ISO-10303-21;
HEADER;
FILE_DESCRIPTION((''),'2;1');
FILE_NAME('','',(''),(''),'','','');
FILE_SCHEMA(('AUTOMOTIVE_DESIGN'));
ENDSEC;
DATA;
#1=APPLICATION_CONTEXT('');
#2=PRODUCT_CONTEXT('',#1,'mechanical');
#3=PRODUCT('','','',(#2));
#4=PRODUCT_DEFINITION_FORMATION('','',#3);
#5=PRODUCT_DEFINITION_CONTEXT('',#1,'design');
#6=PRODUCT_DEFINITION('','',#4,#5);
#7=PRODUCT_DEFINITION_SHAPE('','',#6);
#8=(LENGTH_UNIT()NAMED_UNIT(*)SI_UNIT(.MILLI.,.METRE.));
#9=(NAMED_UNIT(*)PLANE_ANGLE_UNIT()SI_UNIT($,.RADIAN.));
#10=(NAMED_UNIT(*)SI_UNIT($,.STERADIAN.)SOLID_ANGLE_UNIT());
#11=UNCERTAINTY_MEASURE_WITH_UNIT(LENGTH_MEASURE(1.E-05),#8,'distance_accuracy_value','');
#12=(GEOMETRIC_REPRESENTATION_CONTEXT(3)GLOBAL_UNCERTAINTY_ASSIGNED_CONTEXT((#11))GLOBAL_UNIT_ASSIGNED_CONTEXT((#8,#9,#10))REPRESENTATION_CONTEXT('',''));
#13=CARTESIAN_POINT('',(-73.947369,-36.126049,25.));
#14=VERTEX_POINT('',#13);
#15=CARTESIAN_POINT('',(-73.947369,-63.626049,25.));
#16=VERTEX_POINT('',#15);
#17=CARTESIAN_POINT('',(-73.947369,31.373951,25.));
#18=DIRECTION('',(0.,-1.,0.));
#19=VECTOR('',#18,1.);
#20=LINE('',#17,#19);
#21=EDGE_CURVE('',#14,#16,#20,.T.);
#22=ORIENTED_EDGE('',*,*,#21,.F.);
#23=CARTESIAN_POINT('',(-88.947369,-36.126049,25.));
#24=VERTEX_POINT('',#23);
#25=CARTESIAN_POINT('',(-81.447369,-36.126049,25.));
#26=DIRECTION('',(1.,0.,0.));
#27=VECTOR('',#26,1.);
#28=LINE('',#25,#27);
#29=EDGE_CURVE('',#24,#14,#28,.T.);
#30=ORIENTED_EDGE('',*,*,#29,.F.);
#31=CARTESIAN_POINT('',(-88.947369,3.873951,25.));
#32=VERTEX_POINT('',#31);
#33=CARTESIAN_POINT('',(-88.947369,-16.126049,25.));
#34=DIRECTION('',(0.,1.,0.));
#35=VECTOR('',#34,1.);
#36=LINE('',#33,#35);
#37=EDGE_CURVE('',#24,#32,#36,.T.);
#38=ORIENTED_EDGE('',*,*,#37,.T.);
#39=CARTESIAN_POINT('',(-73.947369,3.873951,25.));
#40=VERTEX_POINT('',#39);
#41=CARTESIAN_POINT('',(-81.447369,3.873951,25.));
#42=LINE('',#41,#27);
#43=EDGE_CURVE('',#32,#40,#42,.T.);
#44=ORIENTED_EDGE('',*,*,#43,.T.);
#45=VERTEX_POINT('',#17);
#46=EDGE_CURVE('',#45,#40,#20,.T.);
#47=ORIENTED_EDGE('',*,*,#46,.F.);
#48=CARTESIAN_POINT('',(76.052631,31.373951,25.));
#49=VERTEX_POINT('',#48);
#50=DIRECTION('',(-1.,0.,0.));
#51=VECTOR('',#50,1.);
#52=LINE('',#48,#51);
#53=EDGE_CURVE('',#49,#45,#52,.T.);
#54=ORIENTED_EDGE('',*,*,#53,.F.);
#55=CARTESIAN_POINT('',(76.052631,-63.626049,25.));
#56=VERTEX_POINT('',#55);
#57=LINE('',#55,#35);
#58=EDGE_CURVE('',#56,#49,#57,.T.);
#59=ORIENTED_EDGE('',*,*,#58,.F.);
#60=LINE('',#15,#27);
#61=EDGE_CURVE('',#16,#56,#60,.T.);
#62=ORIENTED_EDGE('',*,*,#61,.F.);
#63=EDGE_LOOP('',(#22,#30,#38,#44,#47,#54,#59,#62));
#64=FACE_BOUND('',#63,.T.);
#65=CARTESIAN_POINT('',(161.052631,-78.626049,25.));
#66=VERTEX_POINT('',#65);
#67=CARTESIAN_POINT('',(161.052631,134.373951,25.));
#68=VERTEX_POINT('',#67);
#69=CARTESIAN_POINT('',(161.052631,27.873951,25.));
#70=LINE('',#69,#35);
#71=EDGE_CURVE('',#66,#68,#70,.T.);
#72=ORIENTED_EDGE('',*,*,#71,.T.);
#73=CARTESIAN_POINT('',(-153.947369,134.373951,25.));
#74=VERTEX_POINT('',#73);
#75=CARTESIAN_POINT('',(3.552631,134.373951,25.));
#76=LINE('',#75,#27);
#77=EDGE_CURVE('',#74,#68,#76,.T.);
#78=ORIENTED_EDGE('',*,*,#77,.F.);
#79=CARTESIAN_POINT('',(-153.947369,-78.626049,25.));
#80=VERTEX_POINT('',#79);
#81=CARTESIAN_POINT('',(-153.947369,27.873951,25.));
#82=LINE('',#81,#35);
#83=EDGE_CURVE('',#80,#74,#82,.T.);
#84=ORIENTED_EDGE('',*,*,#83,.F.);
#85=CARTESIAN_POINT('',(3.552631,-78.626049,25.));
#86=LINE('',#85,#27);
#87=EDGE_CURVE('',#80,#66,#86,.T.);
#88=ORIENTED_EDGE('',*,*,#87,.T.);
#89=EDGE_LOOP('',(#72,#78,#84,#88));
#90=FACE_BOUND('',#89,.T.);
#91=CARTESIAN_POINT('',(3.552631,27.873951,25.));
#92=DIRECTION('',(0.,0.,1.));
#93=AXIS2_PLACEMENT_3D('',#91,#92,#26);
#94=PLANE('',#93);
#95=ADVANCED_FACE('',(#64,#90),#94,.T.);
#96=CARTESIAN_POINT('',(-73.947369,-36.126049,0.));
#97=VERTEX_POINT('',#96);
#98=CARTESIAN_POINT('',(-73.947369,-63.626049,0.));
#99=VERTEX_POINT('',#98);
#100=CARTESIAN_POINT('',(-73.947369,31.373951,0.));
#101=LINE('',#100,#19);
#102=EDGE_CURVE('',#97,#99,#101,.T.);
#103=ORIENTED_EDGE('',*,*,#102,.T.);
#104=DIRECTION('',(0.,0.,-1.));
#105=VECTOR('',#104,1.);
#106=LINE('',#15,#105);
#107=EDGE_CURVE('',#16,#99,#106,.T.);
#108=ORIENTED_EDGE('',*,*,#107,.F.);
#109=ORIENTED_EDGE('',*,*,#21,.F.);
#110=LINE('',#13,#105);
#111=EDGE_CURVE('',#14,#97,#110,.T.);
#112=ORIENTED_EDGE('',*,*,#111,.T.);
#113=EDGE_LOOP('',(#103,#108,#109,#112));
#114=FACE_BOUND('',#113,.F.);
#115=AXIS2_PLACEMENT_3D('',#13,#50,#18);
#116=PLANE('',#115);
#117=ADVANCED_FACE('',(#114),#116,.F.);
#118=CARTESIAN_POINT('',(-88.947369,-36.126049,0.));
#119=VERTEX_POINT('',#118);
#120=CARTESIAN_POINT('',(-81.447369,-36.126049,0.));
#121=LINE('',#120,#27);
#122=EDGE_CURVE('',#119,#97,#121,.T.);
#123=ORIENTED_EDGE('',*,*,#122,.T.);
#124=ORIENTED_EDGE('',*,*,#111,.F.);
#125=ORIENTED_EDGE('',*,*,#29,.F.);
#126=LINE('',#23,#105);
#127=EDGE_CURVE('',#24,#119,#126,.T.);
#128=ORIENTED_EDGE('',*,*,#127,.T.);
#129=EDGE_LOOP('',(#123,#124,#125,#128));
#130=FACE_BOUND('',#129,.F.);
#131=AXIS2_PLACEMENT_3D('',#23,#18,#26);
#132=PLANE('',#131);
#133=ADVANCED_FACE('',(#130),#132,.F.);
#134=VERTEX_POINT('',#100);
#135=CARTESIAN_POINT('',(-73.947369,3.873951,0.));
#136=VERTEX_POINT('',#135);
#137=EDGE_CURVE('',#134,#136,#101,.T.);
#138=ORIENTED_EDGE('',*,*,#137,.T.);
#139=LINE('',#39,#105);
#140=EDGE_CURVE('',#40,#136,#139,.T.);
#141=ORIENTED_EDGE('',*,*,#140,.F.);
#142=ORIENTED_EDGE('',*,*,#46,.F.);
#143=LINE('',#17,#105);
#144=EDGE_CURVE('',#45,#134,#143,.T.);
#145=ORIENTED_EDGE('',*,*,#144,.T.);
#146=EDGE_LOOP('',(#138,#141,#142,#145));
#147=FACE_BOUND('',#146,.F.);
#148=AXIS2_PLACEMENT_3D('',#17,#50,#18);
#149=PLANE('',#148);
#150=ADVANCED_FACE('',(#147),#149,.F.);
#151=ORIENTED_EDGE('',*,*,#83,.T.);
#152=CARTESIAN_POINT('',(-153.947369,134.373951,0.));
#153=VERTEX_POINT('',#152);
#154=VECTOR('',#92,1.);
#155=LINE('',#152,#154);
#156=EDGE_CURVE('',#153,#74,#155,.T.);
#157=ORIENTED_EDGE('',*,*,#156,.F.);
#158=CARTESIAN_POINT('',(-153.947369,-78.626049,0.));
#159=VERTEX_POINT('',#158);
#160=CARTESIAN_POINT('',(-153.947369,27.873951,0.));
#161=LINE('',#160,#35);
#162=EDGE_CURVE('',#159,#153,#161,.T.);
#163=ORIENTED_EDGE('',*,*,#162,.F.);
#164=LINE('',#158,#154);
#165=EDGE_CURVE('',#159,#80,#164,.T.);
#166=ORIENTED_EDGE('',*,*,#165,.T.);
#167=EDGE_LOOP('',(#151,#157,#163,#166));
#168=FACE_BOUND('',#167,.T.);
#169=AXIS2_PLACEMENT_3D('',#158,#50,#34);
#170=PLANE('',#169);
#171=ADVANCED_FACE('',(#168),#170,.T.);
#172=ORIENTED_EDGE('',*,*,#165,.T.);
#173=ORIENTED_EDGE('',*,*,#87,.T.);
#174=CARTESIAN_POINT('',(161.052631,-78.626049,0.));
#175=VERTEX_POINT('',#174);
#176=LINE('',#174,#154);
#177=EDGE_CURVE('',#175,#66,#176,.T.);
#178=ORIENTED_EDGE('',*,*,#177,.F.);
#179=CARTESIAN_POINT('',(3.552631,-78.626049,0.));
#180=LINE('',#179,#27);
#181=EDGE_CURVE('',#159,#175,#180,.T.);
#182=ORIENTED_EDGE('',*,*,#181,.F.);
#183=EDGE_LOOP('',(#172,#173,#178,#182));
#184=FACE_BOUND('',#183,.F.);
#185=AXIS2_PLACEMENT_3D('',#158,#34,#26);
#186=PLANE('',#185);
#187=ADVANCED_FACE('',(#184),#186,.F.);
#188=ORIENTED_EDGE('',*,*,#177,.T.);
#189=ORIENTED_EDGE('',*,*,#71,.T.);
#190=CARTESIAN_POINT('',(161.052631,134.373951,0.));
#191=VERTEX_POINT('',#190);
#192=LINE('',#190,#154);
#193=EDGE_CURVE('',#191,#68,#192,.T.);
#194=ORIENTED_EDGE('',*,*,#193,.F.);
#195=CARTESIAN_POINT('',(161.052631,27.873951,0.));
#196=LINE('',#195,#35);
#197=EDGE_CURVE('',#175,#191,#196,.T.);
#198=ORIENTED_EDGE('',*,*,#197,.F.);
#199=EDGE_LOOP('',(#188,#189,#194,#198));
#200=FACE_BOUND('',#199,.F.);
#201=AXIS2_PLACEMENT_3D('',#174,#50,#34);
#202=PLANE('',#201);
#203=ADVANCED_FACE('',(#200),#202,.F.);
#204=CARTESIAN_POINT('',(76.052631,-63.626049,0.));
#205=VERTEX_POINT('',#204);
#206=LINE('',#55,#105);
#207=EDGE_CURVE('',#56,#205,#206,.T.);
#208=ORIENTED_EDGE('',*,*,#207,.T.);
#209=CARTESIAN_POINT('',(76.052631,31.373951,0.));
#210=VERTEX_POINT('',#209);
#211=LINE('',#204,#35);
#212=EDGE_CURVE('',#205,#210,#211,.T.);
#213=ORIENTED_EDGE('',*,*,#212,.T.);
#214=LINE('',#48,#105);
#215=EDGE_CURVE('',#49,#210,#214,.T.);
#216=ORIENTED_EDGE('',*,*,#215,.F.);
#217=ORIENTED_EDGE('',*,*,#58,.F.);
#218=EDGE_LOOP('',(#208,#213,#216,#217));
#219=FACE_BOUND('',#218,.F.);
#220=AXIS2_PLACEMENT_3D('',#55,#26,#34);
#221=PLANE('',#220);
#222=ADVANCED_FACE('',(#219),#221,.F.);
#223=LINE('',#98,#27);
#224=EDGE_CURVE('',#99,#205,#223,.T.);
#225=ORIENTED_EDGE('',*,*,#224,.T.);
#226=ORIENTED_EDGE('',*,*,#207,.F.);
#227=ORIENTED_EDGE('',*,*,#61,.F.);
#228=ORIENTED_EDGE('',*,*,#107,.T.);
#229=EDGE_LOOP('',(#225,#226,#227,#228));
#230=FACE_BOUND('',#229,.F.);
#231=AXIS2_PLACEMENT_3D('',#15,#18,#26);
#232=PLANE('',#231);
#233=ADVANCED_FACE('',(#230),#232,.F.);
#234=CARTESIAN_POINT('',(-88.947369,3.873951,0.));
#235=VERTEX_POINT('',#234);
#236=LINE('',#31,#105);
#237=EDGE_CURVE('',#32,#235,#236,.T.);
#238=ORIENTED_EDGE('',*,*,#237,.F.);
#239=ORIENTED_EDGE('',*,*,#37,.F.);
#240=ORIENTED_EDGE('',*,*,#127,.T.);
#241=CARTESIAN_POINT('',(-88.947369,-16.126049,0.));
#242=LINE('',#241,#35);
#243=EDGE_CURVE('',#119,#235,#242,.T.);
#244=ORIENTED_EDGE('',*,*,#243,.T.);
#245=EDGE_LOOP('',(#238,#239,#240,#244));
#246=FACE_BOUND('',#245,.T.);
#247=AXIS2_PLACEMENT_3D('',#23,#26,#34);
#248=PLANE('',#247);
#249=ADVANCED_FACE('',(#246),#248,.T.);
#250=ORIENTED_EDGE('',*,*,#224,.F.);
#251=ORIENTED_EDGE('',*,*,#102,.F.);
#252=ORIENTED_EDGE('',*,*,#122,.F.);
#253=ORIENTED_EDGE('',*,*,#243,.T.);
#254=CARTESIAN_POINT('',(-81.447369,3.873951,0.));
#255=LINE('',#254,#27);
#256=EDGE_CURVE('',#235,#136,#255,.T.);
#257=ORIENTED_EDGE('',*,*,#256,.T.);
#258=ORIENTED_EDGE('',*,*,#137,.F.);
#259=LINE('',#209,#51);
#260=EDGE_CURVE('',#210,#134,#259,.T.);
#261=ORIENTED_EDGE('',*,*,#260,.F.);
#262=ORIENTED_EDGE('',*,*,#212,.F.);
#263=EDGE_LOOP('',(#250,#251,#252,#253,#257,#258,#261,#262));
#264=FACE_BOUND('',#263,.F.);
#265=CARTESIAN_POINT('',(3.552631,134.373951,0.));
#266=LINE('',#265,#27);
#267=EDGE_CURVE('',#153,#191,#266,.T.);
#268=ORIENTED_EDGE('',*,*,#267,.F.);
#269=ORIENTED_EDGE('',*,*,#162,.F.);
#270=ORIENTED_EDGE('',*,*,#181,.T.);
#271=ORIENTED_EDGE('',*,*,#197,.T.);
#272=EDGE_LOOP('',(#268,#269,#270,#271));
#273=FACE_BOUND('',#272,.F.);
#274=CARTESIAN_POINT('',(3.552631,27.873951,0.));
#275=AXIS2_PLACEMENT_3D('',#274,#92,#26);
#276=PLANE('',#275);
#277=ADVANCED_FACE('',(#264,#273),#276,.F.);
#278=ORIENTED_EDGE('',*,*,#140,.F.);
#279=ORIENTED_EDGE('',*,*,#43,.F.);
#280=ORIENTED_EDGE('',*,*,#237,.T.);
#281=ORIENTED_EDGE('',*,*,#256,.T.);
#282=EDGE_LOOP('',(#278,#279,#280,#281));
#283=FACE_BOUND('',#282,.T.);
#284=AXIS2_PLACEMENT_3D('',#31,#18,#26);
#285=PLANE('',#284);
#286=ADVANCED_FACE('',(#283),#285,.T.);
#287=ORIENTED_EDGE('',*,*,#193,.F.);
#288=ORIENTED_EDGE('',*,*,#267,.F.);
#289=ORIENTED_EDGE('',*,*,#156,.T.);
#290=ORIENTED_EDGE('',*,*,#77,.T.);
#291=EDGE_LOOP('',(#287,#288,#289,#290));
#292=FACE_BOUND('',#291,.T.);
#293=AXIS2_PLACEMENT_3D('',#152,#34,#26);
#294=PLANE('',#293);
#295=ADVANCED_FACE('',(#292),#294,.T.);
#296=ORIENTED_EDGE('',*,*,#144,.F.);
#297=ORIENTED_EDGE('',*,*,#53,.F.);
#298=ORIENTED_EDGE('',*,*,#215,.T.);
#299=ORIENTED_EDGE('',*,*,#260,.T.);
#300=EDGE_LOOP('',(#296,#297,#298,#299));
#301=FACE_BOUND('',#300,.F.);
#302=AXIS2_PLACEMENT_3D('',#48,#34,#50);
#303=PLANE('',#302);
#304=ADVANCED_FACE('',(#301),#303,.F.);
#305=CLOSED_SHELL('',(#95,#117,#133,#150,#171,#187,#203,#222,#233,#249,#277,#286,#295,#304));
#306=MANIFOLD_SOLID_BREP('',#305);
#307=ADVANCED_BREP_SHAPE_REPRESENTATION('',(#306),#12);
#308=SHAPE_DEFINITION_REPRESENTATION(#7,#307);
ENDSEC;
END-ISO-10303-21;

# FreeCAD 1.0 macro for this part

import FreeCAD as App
import Part
import Sketcher
Q = App.Units.Quantity


def add_polygon(sketch, points):
    """Adds a closed chain of lines whose ends are joined by coincident constraints."""
    first, n = sketch.GeometryCount, len(points)
    for a, b in zip(points, points[1:] + points[:1]):
        sketch.addGeometry(Part.LineSegment(App.Vector(*a, 0), App.Vector(*b, 0)), False)
    for i in range(n):
        sketch.addConstraint(Sketcher.Constraint("Coincident", first + i, 2, first + (i + 1) % n, 1))

doc = App.newDocument("Part")
params = doc.addObject("Spreadsheet::Sheet", "Params")
for row, (alias, value) in enumerate([
    ("sketch1_width", "315 mm"),
    ("sketch1_height", "213 mm"),
    ("pad1_length", "25 mm"),
    ("sketch2_width", "150 mm"),
    ("sketch2_width2", "15 mm"),
    ("sketch2_height", "40 mm"),
    ("sketch2_height2", "95 mm"),
    ("pocket1_length", "25 mm"),
], start=1):
    params.set(f"A{row}", alias)
    params.set(f"B{row}", "=" + value)
    params.setAlias(f"B{row}", alias)

body = doc.addObject("PartDesign::Body", "Body")

sketch1 = body.newObject("Sketcher::SketchObject", "Sketch")
sketch1.AttachmentSupport = (doc.getObject("XY_Plane"), [""])
sketch1.MapMode = "FlatFace"
add_polygon(sketch1, [(-154, 134), (-154, -79), (161, -79), (161, 134)])
sketch1.addConstraint([
    Sketcher.Constraint("Vertical", 0),
    Sketcher.Constraint("Horizontal", 1),
    Sketcher.Constraint("Vertical", 2),
    Sketcher.Constraint("Horizontal", 3),
    Sketcher.Constraint("DistanceX", 1, 1, 1, 2, Q("315 mm")),
    Sketcher.Constraint("DistanceY", 0, 2, 0, 1, Q("213 mm")),
    Sketcher.Constraint("DistanceX", 0, 2, -1, 1, Q("153.947369 mm")),
    Sketcher.Constraint("DistanceY", 0, 2, -1, 1, Q("78.626049 mm")),
])
sketch1.setExpression("Constraints[8]", "Params.sketch1_width")
sketch1.setExpression("Constraints[9]", "Params.sketch1_height")
pad1 = body.newObject("PartDesign::Pad", "Pad")
pad1.Profile = sketch1
pad1.setExpression("Length", "Params.pad1_length")

sketch2 = body.newObject("Sketcher::SketchObject", "Sketch001")
sketch2.AttachmentSupport = (doc.getObject("XY_Plane"), [""])
sketch2.MapMode = "FlatFace"
sketch2.AttachmentOffset = App.Placement(App.Vector(0, 0, 25), App.Rotation())
add_polygon(sketch2, [(76, 31), (-74, 31), (-74, 4), (-89, 4), (-89, -36), (-74, -36), (-74, -64), (76, -64)])
sketch2.addConstraint([
    Sketcher.Constraint("Horizontal", 0),
    Sketcher.Constraint("Vertical", 1),
    Sketcher.Constraint("Horizontal", 2),
    Sketcher.Constraint("Vertical", 3),
    Sketcher.Constraint("Horizontal", 4),
    Sketcher.Constraint("Vertical", 5),
    Sketcher.Constraint("Horizontal", 6),
    Sketcher.Constraint("Vertical", 7),
    Sketcher.Constraint("Vertical", 1, 2, 4, 2),
    Sketcher.Constraint("Equal", 1, 5),
    Sketcher.Constraint("DistanceX", 0, 2, 0, 1, Q("150 mm")),
    Sketcher.Constraint("DistanceX", 2, 2, 2, 1, Q("15 mm")),
    Sketcher.Constraint("DistanceY", 3, 2, 3, 1, Q("40 mm")),
    Sketcher.Constraint("DistanceY", 7, 1, 7, 2, Q("95 mm")),
    Sketcher.Constraint("DistanceX", 0, 2, -1, 1, Q("73.947369 mm")),
    Sketcher.Constraint("DistanceY", -1, 1, 0, 2, Q("31.373951 mm")),
])
sketch2.setExpression("Constraints[18]", "Params.sketch2_width")
sketch2.setExpression("Constraints[19]", "Params.sketch2_width2")
sketch2.setExpression("Constraints[20]", "Params.sketch2_height")
sketch2.setExpression("Constraints[21]", "Params.sketch2_height2")
pocket1 = body.newObject("PartDesign::Pocket", "Pocket")
pocket1.Profile = sketch2
pocket1.setExpression("Length", "Params.pocket1_length")

doc.recompute()
